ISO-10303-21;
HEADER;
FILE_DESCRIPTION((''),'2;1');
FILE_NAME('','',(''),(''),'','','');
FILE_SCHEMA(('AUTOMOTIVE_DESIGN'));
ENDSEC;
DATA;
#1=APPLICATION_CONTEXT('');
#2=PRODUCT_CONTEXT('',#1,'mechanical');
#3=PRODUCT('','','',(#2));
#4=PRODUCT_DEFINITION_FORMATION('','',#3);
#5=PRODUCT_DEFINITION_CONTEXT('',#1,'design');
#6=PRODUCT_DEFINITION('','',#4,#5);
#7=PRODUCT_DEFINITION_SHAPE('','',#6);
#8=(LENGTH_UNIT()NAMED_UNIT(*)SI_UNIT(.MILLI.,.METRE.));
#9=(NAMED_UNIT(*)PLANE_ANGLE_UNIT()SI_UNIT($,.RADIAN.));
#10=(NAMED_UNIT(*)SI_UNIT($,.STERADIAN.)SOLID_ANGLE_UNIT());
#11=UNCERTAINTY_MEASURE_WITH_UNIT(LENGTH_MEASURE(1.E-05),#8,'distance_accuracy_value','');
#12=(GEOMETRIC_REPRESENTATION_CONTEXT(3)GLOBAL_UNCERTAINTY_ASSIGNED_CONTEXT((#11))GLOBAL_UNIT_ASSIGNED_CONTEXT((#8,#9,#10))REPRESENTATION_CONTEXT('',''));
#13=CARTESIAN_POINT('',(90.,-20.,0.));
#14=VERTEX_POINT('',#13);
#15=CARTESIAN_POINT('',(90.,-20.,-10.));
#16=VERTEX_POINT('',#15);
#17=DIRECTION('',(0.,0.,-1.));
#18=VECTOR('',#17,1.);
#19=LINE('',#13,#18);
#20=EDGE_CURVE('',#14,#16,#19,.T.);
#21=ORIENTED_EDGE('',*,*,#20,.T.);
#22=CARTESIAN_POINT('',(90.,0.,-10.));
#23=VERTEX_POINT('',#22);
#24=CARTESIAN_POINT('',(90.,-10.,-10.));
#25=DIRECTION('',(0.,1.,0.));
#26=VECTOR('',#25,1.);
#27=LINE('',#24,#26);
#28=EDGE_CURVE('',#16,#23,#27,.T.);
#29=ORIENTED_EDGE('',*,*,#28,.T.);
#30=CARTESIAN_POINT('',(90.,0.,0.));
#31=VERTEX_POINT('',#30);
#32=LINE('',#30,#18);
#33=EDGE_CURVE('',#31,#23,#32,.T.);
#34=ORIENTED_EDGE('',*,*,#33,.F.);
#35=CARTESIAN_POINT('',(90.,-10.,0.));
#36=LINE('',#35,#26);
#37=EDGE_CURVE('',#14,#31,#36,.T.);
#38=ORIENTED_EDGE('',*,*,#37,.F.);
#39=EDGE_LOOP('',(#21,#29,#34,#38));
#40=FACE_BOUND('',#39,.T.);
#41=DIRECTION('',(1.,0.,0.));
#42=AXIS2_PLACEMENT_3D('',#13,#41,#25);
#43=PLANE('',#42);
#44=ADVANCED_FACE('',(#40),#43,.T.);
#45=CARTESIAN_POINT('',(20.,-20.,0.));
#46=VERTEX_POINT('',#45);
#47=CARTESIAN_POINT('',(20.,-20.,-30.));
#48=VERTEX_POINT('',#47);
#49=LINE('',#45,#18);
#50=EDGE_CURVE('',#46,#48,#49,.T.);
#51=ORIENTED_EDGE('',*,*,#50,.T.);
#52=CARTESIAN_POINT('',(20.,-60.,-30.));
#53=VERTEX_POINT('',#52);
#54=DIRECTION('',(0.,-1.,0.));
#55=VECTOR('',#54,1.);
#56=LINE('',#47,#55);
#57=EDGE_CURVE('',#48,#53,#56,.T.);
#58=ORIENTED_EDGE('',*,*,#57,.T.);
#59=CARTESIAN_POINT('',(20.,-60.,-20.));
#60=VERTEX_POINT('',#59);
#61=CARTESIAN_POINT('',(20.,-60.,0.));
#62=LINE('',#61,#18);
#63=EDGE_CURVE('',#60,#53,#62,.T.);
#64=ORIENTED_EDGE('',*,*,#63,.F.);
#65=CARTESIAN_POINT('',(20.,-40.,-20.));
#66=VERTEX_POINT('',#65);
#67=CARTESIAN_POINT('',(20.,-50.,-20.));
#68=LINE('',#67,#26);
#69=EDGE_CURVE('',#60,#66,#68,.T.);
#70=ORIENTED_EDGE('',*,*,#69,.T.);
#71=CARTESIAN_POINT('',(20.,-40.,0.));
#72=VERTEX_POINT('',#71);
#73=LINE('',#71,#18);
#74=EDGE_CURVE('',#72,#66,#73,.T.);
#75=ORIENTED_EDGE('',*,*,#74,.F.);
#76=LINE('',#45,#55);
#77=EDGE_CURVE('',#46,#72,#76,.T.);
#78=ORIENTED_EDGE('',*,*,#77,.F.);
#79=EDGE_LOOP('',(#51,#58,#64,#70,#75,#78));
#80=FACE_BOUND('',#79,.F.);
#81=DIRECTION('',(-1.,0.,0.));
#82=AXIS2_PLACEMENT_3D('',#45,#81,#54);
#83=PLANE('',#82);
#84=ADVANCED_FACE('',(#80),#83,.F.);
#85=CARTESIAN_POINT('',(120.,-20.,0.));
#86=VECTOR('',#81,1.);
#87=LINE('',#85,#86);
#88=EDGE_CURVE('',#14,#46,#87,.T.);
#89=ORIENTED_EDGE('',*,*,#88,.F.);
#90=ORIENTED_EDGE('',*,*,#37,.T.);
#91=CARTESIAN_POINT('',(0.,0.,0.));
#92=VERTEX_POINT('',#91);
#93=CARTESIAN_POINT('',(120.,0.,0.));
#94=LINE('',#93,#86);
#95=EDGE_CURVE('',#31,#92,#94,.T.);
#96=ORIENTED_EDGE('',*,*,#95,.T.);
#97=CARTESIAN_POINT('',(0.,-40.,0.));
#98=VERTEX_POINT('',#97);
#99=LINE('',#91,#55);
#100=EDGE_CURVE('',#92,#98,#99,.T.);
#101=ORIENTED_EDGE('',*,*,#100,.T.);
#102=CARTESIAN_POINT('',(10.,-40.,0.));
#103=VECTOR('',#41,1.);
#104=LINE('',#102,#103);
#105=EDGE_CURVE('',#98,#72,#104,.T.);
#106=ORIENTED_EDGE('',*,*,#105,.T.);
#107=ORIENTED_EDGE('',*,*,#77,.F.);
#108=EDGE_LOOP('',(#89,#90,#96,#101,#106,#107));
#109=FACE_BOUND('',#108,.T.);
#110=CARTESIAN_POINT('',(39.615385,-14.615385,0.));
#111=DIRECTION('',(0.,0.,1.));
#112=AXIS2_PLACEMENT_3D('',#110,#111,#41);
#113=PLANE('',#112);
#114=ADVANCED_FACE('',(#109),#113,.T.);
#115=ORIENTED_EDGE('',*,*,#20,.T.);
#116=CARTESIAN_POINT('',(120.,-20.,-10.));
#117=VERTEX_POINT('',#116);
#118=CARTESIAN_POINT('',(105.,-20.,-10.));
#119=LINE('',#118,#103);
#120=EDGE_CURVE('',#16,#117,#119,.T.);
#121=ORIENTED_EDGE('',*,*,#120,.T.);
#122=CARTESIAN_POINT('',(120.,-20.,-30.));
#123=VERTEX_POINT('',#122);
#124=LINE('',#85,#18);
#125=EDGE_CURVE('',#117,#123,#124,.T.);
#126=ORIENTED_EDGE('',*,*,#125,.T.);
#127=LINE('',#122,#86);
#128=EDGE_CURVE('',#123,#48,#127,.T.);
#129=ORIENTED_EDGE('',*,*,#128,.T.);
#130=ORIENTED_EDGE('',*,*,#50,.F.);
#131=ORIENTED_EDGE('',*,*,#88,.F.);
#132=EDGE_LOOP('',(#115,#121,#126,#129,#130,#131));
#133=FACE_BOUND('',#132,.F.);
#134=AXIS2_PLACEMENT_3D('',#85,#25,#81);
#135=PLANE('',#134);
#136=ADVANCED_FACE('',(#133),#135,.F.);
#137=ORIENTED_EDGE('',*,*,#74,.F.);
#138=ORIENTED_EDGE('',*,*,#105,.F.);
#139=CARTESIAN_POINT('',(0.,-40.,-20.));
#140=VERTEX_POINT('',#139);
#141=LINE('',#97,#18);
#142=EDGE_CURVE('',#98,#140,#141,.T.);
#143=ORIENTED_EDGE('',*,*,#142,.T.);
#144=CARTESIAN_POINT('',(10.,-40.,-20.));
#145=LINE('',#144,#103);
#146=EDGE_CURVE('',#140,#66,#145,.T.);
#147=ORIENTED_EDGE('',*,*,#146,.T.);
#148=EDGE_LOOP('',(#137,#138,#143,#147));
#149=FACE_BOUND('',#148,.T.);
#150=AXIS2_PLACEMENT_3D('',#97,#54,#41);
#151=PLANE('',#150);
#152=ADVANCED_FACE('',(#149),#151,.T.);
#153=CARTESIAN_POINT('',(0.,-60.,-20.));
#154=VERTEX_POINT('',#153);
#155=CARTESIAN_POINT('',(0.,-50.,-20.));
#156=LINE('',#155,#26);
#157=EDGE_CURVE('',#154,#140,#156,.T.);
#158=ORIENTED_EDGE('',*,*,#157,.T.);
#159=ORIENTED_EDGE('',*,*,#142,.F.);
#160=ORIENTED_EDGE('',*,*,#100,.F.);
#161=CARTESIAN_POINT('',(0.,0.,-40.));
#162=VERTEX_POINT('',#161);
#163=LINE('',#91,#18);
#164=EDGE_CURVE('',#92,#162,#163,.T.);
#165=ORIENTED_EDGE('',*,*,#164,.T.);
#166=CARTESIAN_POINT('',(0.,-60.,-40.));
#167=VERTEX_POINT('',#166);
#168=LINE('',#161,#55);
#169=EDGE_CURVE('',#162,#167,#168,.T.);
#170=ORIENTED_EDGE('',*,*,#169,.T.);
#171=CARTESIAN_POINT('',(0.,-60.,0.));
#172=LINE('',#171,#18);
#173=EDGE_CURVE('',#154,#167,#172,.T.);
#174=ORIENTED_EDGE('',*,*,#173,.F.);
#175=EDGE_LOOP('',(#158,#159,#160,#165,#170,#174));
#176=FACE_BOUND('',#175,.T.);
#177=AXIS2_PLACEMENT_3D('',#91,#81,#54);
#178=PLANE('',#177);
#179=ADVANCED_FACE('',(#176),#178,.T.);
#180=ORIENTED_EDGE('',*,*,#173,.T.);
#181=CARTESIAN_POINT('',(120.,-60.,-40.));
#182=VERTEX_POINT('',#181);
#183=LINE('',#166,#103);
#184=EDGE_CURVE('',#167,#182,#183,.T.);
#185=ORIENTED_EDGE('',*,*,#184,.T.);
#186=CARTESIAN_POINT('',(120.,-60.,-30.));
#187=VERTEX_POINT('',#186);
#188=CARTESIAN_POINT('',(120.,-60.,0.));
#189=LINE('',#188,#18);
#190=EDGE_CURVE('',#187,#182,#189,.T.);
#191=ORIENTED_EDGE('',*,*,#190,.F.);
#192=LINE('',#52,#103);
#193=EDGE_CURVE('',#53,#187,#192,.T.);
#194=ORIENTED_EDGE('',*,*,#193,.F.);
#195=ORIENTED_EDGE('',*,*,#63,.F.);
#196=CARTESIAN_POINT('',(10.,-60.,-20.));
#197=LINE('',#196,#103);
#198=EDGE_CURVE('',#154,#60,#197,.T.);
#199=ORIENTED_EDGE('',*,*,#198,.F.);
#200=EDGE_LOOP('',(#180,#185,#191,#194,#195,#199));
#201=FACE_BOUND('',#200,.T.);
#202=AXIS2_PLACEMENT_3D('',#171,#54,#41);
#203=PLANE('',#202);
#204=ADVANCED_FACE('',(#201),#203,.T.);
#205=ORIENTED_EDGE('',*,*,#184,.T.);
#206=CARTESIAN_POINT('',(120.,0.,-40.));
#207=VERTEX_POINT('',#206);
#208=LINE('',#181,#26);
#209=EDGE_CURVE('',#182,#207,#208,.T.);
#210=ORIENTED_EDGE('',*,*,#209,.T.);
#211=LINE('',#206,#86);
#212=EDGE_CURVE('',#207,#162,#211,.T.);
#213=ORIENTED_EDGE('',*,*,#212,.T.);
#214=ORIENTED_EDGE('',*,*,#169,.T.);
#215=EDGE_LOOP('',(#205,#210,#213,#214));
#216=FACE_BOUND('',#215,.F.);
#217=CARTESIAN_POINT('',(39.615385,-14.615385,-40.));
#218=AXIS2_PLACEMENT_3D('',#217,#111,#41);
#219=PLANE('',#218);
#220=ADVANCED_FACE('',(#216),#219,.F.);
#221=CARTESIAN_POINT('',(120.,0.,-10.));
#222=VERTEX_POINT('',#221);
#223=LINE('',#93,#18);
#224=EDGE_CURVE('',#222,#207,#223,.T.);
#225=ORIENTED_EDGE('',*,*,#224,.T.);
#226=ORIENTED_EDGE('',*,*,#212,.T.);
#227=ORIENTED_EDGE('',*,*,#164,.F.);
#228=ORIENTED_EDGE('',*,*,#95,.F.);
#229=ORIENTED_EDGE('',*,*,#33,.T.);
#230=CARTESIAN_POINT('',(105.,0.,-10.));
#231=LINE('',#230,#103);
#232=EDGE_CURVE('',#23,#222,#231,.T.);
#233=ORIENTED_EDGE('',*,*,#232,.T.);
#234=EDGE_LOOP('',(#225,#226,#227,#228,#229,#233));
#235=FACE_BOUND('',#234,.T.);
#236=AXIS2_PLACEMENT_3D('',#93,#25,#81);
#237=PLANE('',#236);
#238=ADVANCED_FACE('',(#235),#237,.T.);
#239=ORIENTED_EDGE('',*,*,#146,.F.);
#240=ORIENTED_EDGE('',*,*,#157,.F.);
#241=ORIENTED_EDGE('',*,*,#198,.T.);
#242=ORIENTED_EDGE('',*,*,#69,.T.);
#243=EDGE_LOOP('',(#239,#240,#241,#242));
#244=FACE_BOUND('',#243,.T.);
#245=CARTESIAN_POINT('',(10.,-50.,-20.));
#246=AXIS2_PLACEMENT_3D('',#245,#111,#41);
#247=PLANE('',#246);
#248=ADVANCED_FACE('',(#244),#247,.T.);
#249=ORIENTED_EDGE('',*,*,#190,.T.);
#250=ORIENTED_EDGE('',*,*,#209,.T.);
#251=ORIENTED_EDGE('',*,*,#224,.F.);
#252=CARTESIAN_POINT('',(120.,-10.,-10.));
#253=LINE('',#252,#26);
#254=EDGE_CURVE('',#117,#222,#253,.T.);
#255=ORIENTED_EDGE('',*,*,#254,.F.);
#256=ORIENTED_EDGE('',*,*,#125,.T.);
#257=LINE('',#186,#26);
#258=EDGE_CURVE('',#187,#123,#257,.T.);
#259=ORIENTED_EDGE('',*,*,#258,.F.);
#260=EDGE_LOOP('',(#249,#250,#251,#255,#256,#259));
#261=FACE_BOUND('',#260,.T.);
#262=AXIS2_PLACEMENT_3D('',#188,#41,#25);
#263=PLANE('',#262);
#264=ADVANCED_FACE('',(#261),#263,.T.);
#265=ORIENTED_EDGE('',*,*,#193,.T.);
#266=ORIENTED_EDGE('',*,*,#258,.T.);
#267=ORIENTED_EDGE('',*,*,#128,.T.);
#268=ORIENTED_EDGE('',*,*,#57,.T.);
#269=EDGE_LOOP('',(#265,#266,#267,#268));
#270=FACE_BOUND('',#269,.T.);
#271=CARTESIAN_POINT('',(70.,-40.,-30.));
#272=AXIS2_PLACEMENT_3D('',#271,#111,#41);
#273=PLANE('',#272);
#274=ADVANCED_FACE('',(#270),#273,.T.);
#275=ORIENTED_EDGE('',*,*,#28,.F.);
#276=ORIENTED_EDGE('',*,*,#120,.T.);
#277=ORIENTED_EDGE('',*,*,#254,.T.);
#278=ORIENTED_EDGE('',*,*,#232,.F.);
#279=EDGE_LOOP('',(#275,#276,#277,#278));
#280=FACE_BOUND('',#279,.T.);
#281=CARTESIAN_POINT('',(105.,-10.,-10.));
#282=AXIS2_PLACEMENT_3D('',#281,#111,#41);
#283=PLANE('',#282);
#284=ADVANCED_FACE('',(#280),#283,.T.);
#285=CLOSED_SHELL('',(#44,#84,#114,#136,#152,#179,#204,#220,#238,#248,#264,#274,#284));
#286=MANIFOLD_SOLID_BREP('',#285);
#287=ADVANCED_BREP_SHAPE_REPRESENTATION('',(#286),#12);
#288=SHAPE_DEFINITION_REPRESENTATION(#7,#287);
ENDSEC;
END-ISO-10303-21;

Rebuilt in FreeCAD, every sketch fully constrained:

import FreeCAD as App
import Part
import Sketcher
Q = App.Units.Quantity

doc = App.newDocument("Part")
body = doc.addObject("PartDesign::Body", "Body")

sketch1 = body.newObject("Sketcher::SketchObject", "Sketch")
sketch1.AttachmentSupport = (doc.getObject("XY_Plane"), [""])
sketch1.MapMode = "FlatFace"
sketch1.addGeometry(Part.LineSegment(App.Vector(0, 0, 0), App.Vector(0, -60, 0)), False)
sketch1.addGeometry(Part.LineSegment(App.Vector(0, -60, 0), App.Vector(120, -60, 0)), False)
sketch1.addGeometry(Part.LineSegment(App.Vector(120, -60, 0), App.Vector(120, 0, 0)), False)
sketch1.addGeometry(Part.LineSegment(App.Vector(120, 0, 0), App.Vector(0, 0, 0)), False)
sketch1.addConstraint(Sketcher.Constraint("Coincident", 0, 2, 1, 1))
sketch1.addConstraint(Sketcher.Constraint("Coincident", 1, 2, 2, 1))
sketch1.addConstraint(Sketcher.Constraint("Coincident", 2, 2, 3, 1))
sketch1.addConstraint(Sketcher.Constraint("Coincident", 3, 2, 0, 1))
sketch1.addConstraint(Sketcher.Constraint("Vertical", 0))
sketch1.addConstraint(Sketcher.Constraint("Horizontal", 1))
sketch1.addConstraint(Sketcher.Constraint("Vertical", 2))
sketch1.addConstraint(Sketcher.Constraint("Horizontal", 3))
sketch1.addConstraint(Sketcher.Constraint("Coincident", 3, 2, -1, 1))
sketch1.addConstraint(Sketcher.Constraint("DistanceX", 1, 1, 1, 2, Q("120 mm")))
sketch1.addConstraint(Sketcher.Constraint("DistanceY", 0, 2, 0, 1, Q("60 mm")))
pad1 = body.newObject("PartDesign::Pad", "Pad")
pad1.Profile = sketch1
pad1.Length = 40
pad1.Reversed = True

sketch2 = body.newObject("Sketcher::SketchObject", "Sketch001")
sketch2.AttachmentSupport = (doc.getObject("XY_Plane"), [""])
sketch2.MapMode = "FlatFace"
sketch2.addGeometry(Part.LineSegment(App.Vector(0, -40, 0), App.Vector(0, -60, 0)), False)
sketch2.addGeometry(Part.LineSegment(App.Vector(0, -60, 0), App.Vector(20, -60, 0)), False)
sketch2.addGeometry(Part.LineSegment(App.Vector(20, -60, 0), App.Vector(20, -40, 0)), False)
sketch2.addGeometry(Part.LineSegment(App.Vector(20, -40, 0), App.Vector(0, -40, 0)), False)
sketch2.addConstraint(Sketcher.Constraint("Coincident", 0, 2, 1, 1))
sketch2.addConstraint(Sketcher.Constraint("Coincident", 1, 2, 2, 1))
sketch2.addConstraint(Sketcher.Constraint("Coincident", 2, 2, 3, 1))
sketch2.addConstraint(Sketcher.Constraint("Coincident", 3, 2, 0, 1))
sketch2.addConstraint(Sketcher.Constraint("Vertical", 0))
sketch2.addConstraint(Sketcher.Constraint("Horizontal", 1))
sketch2.addConstraint(Sketcher.Constraint("Vertical", 2))
sketch2.addConstraint(Sketcher.Constraint("Horizontal", 3))
sketch2.addConstraint(Sketcher.Constraint("PointOnObject", 0, 2, -2))
sketch2.addConstraint(Sketcher.Constraint("Equal", 3, 0))
sketch2.addConstraint(Sketcher.Constraint("DistanceX", 1, 1, 1, 2, Q("20 mm")))
sketch2.addConstraint(Sketcher.Constraint("DistanceY", 0, 2, -1, 1, Q("60 mm")))
pocket1 = body.newObject("PartDesign::Pocket", "Pocket")
pocket1.Profile = sketch2
pocket1.Length = 20

sketch3 = body.newObject("Sketcher::SketchObject", "Sketch002")
sketch3.AttachmentSupport = (doc.getObject("XY_Plane"), [""])
sketch3.MapMode = "FlatFace"
sketch3.addGeometry(Part.LineSegment(App.Vector(90, 0, 0), App.Vector(90, -20, 0)), False)
sketch3.addGeometry(Part.LineSegment(App.Vector(90, -20, 0), App.Vector(120, -20, 0)), False)
sketch3.addGeometry(Part.LineSegment(App.Vector(120, -20, 0), App.Vector(120, 0, 0)), False)
sketch3.addGeometry(Part.LineSegment(App.Vector(120, 0, 0), App.Vector(90, 0, 0)), False)
sketch3.addConstraint(Sketcher.Constraint("Coincident", 0, 2, 1, 1))
sketch3.addConstraint(Sketcher.Constraint("Coincident", 1, 2, 2, 1))
sketch3.addConstraint(Sketcher.Constraint("Coincident", 2, 2, 3, 1))
sketch3.addConstraint(Sketcher.Constraint("Coincident", 3, 2, 0, 1))
sketch3.addConstraint(Sketcher.Constraint("Vertical", 0))
sketch3.addConstraint(Sketcher.Constraint("Horizontal", 1))
sketch3.addConstraint(Sketcher.Constraint("Vertical", 2))
sketch3.addConstraint(Sketcher.Constraint("Horizontal", 3))
sketch3.addConstraint(Sketcher.Constraint("PointOnObject", 2, 2, -1))
sketch3.addConstraint(Sketcher.Constraint("DistanceX", 1, 1, 1, 2, Q("30 mm")))
sketch3.addConstraint(Sketcher.Constraint("DistanceY", 0, 2, 0, 1, Q("20 mm")))
sketch3.addConstraint(Sketcher.Constraint("DistanceX", -1, 1, 0, 2, Q("90 mm")))
pocket2 = body.newObject("PartDesign::Pocket", "Pocket001")
pocket2.Profile = sketch3
pocket2.Length = 10

sketch4 = body.newObject("Sketcher::SketchObject", "Sketch003")
sketch4.AttachmentSupport = (doc.getObject("XY_Plane"), [""])
sketch4.MapMode = "FlatFace"
sketch4.addGeometry(Part.LineSegment(App.Vector(120, -20, 0), App.Vector(20, -20, 0)), False)
sketch4.addGeometry(Part.LineSegment(App.Vector(20, -20, 0), App.Vector(20, -60, 0)), False)
sketch4.addGeometry(Part.LineSegment(App.Vector(20, -60, 0), App.Vector(120, -60, 0)), False)
sketch4.addGeometry(Part.LineSegment(App.Vector(120, -60, 0), App.Vector(120, -20, 0)), False)
sketch4.addConstraint(Sketcher.Constraint("Coincident", 0, 2, 1, 1))
sketch4.addConstraint(Sketcher.Constraint("Coincident", 1, 2, 2, 1))
sketch4.addConstraint(Sketcher.Constraint("Coincident", 2, 2, 3, 1))
sketch4.addConstraint(Sketcher.Constraint("Coincident", 3, 2, 0, 1))
sketch4.addConstraint(Sketcher.Constraint("Horizontal", 0))
sketch4.addConstraint(Sketcher.Constraint("Vertical", 1))
sketch4.addConstraint(Sketcher.Constraint("Horizontal", 2))
sketch4.addConstraint(Sketcher.Constraint("Vertical", 3))
sketch4.addConstraint(Sketcher.Constraint("DistanceX", 0, 2, 0, 1, Q("100 mm")))
sketch4.addConstraint(Sketcher.Constraint("DistanceY", 1, 2, 1, 1, Q("40 mm")))
sketch4.addConstraint(Sketcher.Constraint("DistanceX", -1, 1, 0, 2, Q("20 mm")))
sketch4.addConstraint(Sketcher.Constraint("DistanceY", 0, 2, -1, 1, Q("20 mm")))
pocket3 = body.newObject("PartDesign::Pocket", "Pocket002")
pocket3.Profile = sketch4
pocket3.Length = 30

doc.recompute()
